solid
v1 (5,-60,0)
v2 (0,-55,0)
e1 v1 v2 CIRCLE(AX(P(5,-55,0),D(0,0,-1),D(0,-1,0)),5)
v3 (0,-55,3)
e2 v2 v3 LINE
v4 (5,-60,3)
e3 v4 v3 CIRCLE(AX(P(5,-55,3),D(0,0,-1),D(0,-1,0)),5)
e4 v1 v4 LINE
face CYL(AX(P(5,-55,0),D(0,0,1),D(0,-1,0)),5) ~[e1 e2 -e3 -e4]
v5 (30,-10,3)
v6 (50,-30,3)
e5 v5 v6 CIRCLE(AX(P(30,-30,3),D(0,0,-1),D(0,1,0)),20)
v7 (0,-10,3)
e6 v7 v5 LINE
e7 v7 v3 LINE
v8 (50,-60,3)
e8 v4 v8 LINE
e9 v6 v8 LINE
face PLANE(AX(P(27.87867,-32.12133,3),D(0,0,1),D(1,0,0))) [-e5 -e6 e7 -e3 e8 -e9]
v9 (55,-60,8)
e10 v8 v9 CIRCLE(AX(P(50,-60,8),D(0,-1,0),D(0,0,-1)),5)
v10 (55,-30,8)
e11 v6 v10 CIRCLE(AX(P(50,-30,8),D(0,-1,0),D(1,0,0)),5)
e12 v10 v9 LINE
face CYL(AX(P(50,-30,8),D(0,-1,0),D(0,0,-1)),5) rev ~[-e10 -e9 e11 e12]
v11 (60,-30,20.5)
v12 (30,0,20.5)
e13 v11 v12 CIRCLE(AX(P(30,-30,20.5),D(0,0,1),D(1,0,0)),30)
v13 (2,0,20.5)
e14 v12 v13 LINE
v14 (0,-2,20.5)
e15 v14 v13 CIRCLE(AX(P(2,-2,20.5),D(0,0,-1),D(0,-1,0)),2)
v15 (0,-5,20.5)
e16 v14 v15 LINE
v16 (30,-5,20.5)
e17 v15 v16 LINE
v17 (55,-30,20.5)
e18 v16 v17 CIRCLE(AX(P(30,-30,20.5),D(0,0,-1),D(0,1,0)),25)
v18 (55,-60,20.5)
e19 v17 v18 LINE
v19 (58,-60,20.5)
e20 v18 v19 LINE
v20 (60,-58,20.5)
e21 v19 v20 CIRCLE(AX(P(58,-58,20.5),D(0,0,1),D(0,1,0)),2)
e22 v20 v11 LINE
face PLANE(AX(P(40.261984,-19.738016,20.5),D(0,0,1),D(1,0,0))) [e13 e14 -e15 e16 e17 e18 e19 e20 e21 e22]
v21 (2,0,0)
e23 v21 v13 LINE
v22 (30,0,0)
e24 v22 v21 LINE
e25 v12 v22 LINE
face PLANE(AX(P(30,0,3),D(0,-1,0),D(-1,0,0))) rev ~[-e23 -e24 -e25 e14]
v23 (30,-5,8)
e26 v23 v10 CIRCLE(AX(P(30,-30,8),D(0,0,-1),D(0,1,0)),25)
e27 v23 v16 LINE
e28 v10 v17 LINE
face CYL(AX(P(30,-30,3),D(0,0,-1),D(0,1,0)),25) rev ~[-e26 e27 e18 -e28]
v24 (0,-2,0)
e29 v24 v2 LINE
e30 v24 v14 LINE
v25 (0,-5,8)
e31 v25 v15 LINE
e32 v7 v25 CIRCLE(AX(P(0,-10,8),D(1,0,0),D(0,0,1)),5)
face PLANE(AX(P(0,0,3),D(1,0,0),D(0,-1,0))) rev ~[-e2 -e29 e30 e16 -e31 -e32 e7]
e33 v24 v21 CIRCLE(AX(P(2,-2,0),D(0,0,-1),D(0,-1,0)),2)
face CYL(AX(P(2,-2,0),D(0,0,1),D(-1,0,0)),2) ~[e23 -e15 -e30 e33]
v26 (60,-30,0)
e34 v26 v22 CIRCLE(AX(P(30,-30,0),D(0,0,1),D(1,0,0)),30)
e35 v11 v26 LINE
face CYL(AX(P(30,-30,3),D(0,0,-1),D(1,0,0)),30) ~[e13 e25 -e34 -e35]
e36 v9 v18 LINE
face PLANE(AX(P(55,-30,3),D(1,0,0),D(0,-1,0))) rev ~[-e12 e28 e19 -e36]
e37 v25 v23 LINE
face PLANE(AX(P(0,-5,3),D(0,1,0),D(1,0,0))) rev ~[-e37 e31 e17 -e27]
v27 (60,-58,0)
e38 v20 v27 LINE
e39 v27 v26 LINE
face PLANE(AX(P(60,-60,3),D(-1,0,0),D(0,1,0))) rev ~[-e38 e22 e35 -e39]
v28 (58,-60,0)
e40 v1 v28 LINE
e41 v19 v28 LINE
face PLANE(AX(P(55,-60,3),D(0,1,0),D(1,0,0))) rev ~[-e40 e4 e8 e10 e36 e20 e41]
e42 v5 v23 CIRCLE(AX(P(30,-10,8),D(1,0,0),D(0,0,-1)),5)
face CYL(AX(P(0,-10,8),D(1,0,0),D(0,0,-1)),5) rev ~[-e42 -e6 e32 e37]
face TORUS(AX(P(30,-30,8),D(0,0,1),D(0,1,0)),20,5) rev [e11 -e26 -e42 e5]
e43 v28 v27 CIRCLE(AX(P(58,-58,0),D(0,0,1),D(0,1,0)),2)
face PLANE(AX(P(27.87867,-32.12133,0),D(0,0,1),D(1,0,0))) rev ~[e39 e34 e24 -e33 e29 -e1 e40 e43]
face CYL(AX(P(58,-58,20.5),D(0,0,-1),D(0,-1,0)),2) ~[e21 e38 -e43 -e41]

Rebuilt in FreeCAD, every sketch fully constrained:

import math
import FreeCAD as App
import Part
import Sketcher
from FreeCAD import Vector


def edges_at(feature, points):
    """Names of the edges that pass closest to the given points."""
    edges = feature.Shape.Edges
    near = lambda p: min(range(len(edges)), key=lambda i: edges[i].distToShape(Part.Vertex(*p))[0])
    return sorted({f"Edge{near(p) + 1}" for p in points})

doc = App.newDocument("Part")
body = doc.addObject("PartDesign::Body", "Body")

sketch1 = body.newObject("Sketcher::SketchObject", "Sketch")
sketch1.AttachmentSupport = (doc.getObject("XY_Plane"), [""])
sketch1.MapMode = "FlatFace"
sketch1.addGeometry(Part.LineSegment(Vector(30, 0, 0), Vector(0, 0, 0)), False)
sketch1.addGeometry(Part.LineSegment(Vector(0, 0, 0), Vector(0, -60, 0)), False)
sketch1.addGeometry(Part.LineSegment(Vector(0, -60, 0), Vector(60, -60, 0)), False)
sketch1.addGeometry(Part.LineSegment(Vector(60, -60, 0), Vector(60, -30, 0)), False)
sketch1.addGeometry(Part.ArcOfCircle(Part.Circle(Vector(30, -30, 0), Vector(0, 0, 1), 30), math.radians(0), math.radians(90)), False)
sketch1.addConstraint(Sketcher.Constraint("Coincident", 0, 2, 1, 1))
sketch1.addConstraint(Sketcher.Constraint("Coincident", 1, 2, 2, 1))
sketch1.addConstraint(Sketcher.Constraint("Coincident", 2, 2, 3, 1))
sketch1.addConstraint(Sketcher.Constraint("Tangent", 3, 2, 4, 1))
sketch1.addConstraint(Sketcher.Constraint("Tangent", 4, 2, 0, 1))
sketch1.addConstraint(Sketcher.Constraint("Horizontal", 0))
sketch1.addConstraint(Sketcher.Constraint("Vertical", 1))
sketch1.addConstraint(Sketcher.Constraint("Horizontal", 2))
sketch1.addConstraint(Sketcher.Constraint("Vertical", 3))
sketch1.addConstraint(Sketcher.Constraint("Coincident", 0, 2, -1, 1))
sketch1.addConstraint(Sketcher.Constraint("Equal", 2, 1))
sketch1.addConstraint(Sketcher.Constraint("Radius", 4, 30.0))
sketch1.addConstraint(Sketcher.Constraint("DistanceX", 0, 2, 0, 1, 30.0))
pad1 = body.newObject("PartDesign::Pad", "Pad")
pad1.Profile = sketch1
pad1.Length = 3

sketch2 = body.newObject("Sketcher::SketchObject", "Sketch001")
sketch2.AttachmentSupport = (doc.getObject("XY_Plane"), [""])
sketch2.MapMode = "FlatFace"
sketch2.AttachmentOffset = App.Placement(Vector(0, 0, 3), App.Rotation())
sketch2.addGeometry(Part.LineSegment(Vector(30, 0, 0), Vector(0, 0, 0)), False)
sketch2.addGeometry(Part.LineSegment(Vector(0, 0, 0), Vector(0, -5, 0)), False)
sketch2.addGeometry(Part.LineSegment(Vector(0, -5, 0), Vector(30, -5, 0)), False)
sketch2.addGeometry(Part.ArcOfCircle(Part.Circle(Vector(30, -30, 0), Vector(0, 0, 1), 25), math.radians(0), math.radians(90)), False)
sketch2.addGeometry(Part.LineSegment(Vector(55, -30, 0), Vector(55, -60, 0)), False)
sketch2.addGeometry(Part.LineSegment(Vector(55, -60, 0), Vector(60, -60, 0)), False)
sketch2.addGeometry(Part.LineSegment(Vector(60, -60, 0), Vector(60, -30, 0)), False)
sketch2.addGeometry(Part.ArcOfCircle(Part.Circle(Vector(30, -30, 0), Vector(0, 0, 1), 30), math.radians(0), math.radians(90)), False)
sketch2.addConstraint(Sketcher.Constraint("Coincident", 0, 2, 1, 1))
sketch2.addConstraint(Sketcher.Constraint("Coincident", 1, 2, 2, 1))
sketch2.addConstraint(Sketcher.Constraint("Tangent", 2, 2, 3, 2))
sketch2.addConstraint(Sketcher.Constraint("Tangent", 3, 1, 4, 1))
sketch2.addConstraint(Sketcher.Constraint("Coincident", 4, 2, 5, 1))
sketch2.addConstraint(Sketcher.Constraint("Coincident", 5, 2, 6, 1))
sketch2.addConstraint(Sketcher.Constraint("Tangent", 6, 2, 7, 1))
sketch2.addConstraint(Sketcher.Constraint("Tangent", 7, 2, 0, 1))
sketch2.addConstraint(Sketcher.Constraint("Horizontal", 0))
sketch2.addConstraint(Sketcher.Constraint("Vertical", 1))
sketch2.addConstraint(Sketcher.Constraint("Horizontal", 2))
sketch2.addConstraint(Sketcher.Constraint("Vertical", 4))
sketch2.addConstraint(Sketcher.Constraint("Horizontal", 5))
sketch2.addConstraint(Sketcher.Constraint("Vertical", 6))
sketch2.addConstraint(Sketcher.Constraint("Coincident", 0, 2, -1, 1))
sketch2.addConstraint(Sketcher.Constraint("Coincident", 7, 3, 3, 3))
sketch2.addConstraint(Sketcher.Constraint("Equal", 2, 4))
sketch2.addConstraint(Sketcher.Constraint("Radius", 3, 25.0))
sketch2.addConstraint(Sketcher.Constraint("Radius", 7, 30.0))
sketch2.addConstraint(Sketcher.Constraint("DistanceX", 0, 2, 0, 1, 30.0))
pad2 = body.newObject("PartDesign::Pad", "Pad001")
pad2.Profile = sketch2
pad2.Length = 17.5
doc.recompute()

fillet = body.newObject("PartDesign::Fillet", "Fillet")
fillet.Base = (pad2, edges_at(pad2, [(0, -60, 1.5)]))
fillet.Radius = 5
doc.recompute()

fillet2 = body.newObject("PartDesign::Fillet", "Fillet001")
fillet2.Base = (fillet, edges_at(fillet, [(0, 0, 10.25)]))
fillet2.Radius = 2
doc.recompute()

fillet3 = body.newObject("PartDesign::Fillet", "Fillet002")
fillet3.Base = (fillet2, edges_at(fillet2, [(60, -60, 10.25)]))
fillet3.Radius = 2
doc.recompute()

fillet4 = body.newObject("PartDesign::Fillet", "Fillet003")
fillet4.Base = (fillet3, edges_at(fillet3, [(15, -5, 3), (47.678, -12.322, 3), (55, -45, 3)]))
fillet4.Radius = 5

doc.recompute()
